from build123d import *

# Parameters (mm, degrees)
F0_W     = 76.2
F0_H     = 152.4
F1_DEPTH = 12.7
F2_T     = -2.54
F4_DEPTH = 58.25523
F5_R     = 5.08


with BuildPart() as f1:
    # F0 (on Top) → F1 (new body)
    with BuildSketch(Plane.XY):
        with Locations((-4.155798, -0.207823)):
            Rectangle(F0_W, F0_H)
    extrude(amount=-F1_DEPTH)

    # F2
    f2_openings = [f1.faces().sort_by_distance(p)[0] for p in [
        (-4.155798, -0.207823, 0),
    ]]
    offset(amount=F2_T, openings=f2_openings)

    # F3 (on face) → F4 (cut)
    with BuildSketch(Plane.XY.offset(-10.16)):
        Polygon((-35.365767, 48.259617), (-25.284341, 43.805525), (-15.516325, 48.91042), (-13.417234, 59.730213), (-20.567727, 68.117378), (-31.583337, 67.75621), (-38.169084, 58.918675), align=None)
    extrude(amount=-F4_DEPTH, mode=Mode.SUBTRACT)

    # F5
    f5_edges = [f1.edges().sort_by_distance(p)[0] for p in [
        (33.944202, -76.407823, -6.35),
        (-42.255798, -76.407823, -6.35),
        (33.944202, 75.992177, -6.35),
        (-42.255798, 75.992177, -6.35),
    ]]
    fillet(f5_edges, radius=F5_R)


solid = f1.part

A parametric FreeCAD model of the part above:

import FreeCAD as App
import Part
import Sketcher

V = App.Vector
Q = App.Units.Quantity


def edges_at(feature, points):
    """Names of the edges that pass closest to the given points."""
    edges = feature.Shape.Edges
    near = lambda p: min(range(len(edges)), key=lambda i: edges[i].distToShape(Part.Vertex(*p))[0])
    return sorted({f"Edge{near(p) + 1}" for p in points})


def faces_at(feature, points):
    """Names of the faces that lie closest to the given points."""
    faces = feature.Shape.Faces
    near = lambda p: min(range(len(faces)), key=lambda i: faces[i].distToShape(Part.Vertex(*p))[0])
    return sorted({f"Face{near(p) + 1}" for p in points})


def add_polygon(sketch, points):
    """Adds a closed chain of lines whose ends are joined by coincident constraints."""
    first, n = sketch.GeometryCount, len(points)
    for a, b in zip(points, points[1:] + points[:1]):
        sketch.addGeometry(Part.LineSegment(App.Vector(*a, 0), App.Vector(*b, 0)), False)
    for i in range(n):
        sketch.addConstraint(Sketcher.Constraint("Coincident", first + i, 2, first + (i + 1) % n, 1))

doc = App.newDocument("Part")
params = doc.addObject("Spreadsheet::Sheet", "Params")
for row, (alias, value) in enumerate([
    ("sketch1_width", "3 in"),
    ("sketch1_height", "6 in"),
    ("pad1_length", "0.5 in"),
    ("thickness_wall", "0.1 in"),
    ("pocket1_length", "58.25523 mm"),
    ("fillet_radius", "0.2 in"),
], start=1):
    params.set(f"A{row}", alias)
    params.set(f"B{row}", "=" + value)
    params.setAlias(f"B{row}", alias)

body = doc.addObject("PartDesign::Body", "Body")

# Sketch on XY plane
sketch1 = body.newObject("Sketcher::SketchObject", "Sketch")
sketch1.AttachmentSupport = (doc.getObject("XY_Plane"), [""])
sketch1.MapMode = "FlatFace"
add_polygon(sketch1, [(-42, 76), (-42, -76), (34, -76), (34, 76)])  # lines 0-3
sketch1.addConstraint(Sketcher.Constraint("Vertical", 0))
sketch1.addConstraint(Sketcher.Constraint("Horizontal", 1))
sketch1.addConstraint(Sketcher.Constraint("Vertical", 2))
sketch1.addConstraint(Sketcher.Constraint("Horizontal", 3))
sketch1.addConstraint(Sketcher.Constraint("DistanceX", 1, 1, 1, 2, Q("3 in")))
sketch1.addConstraint(Sketcher.Constraint("DistanceY", 0, 2, 0, 1, Q("6 in")))
sketch1.addConstraint(Sketcher.Constraint("DistanceX", -1, 1, 1, 2, Q("33.944202 mm")))
sketch1.addConstraint(Sketcher.Constraint("DistanceY", 0, 2, -1, 1, Q("76.407823 mm")))
sketch1.setExpression("Constraints[8]", "Params.sketch1_width")
sketch1.setExpression("Constraints[9]", "Params.sketch1_height")
pad1 = body.newObject("PartDesign::Pad", "Pad")
pad1.Profile = sketch1
pad1.setExpression("Length", "Params.pad1_length")
pad1.Reversed = True
doc.recompute()

thickness = body.newObject("PartDesign::Thickness", "Thickness")
thickness.Base = (pad1, faces_at(pad1, [(-4.156, -0.208, 0)]))
thickness.setExpression("Value", "Params.thickness_wall")
thickness.Reversed = True
thickness.Join = "Arc"

# Sketch on XY plane
sketch2 = body.newObject("Sketcher::SketchObject", "Sketch001")
sketch2.AttachmentSupport = (doc.getObject("XY_Plane"), [""])
sketch2.MapMode = "FlatFace"
sketch2.AttachmentOffset = App.Placement(V(0, 0, -0.4 * 25.4), App.Rotation())
add_polygon(sketch2, [(-35, 48), (-25, 44), (-16, 49), (-13, 60), (-21, 68), (-32, 68), (-38, 59)])  # lines 0-6
sketch2.addConstraint(Sketcher.Constraint("Equal", 0, 1))
sketch2.addConstraint(Sketcher.Constraint("Equal", 1, 2))
sketch2.addConstraint(Sketcher.Constraint("Equal", 2, 3))
sketch2.addConstraint(Sketcher.Constraint("Equal", 3, 4))
sketch2.addConstraint(Sketcher.Constraint("Equal", 4, 5))
sketch2.addConstraint(Sketcher.Constraint("Equal", 5, 6))
sketch2.addConstraint(Sketcher.Constraint("DistanceX", 6, 2, 3, 2, Q("0.5826 in")))
sketch2.addConstraint(Sketcher.Constraint("Distance", 0, Q("11.021528 mm")))
sketch2.addConstraint(Sketcher.Constraint("DistanceX", 0, 2, -1, 1, Q("25.284341 mm")))
sketch2.addConstraint(Sketcher.Constraint("DistanceY", -1, 1, 1, 2, Q("48.91042 mm")))
sketch2.addConstraint(Sketcher.Constraint("DistanceY", -1, 1, 3, 2, Q("68.117378 mm")))
sketch2.addConstraint(Sketcher.Constraint("DistanceY", -1, 1, 4, 2, Q("67.75621 mm")))
sketch2.addConstraint(Sketcher.Constraint("DistanceX", 1, 2, 2, 2, Q("2.099091 mm")))
sketch2.addConstraint(Sketcher.Constraint("DistanceY", 0, 2, 5, 2, Q("15.11315 mm")))
pocket1 = body.newObject("PartDesign::Pocket", "Pocket")
pocket1.Profile = sketch2
pocket1.setExpression("Length", "Params.pocket1_length")
doc.recompute()

fillet = body.newObject("PartDesign::Fillet", "Fillet")
fillet.Base = (pocket1, edges_at(pocket1, [
    (33.944, -76.408, -6.35),
    (-42.256, -76.408, -6.35),
    (33.944, 75.992, -6.35),
    (-42.256, 75.992, -6.35),
]))
fillet.setExpression("Radius", "Params.fillet_radius")

doc.recompute()
